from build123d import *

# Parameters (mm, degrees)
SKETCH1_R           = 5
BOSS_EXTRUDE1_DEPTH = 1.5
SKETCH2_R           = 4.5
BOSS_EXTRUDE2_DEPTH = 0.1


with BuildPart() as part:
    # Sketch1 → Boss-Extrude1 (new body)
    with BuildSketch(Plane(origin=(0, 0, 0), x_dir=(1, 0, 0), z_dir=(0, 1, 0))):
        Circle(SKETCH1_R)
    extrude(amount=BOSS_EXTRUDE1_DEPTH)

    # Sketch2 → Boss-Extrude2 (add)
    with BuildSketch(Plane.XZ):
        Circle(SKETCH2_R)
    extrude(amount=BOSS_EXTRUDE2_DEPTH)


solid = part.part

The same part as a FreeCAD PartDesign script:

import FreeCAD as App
import Part
import Sketcher
from FreeCAD import Vector

doc = App.newDocument("Part")
body = doc.addObject("PartDesign::Body", "Body")

# Sketch on XZ plane
sketch1 = body.newObject("Sketcher::SketchObject", "Sketch")
sketch1.AttachmentSupport = (doc.getObject("XZ_Plane"), [""])
sketch1.MapMode = "FlatFace"
sketch1.addGeometry(Part.Circle(Vector(0, 0, 0), Vector(0, 0, 1), 5), False)
sketch1.addConstraint(Sketcher.Constraint("Coincident", 0, 3, -1, 1))
sketch1.addConstraint(Sketcher.Constraint("Diameter", 0, 10.0))
pad1 = body.newObject("PartDesign::Pad", "Pad")
pad1.Profile = sketch1
pad1.Length = 1.5
pad1.Reversed = True

# Sketch on XZ plane
sketch2 = body.newObject("Sketcher::SketchObject", "Sketch001")
sketch2.AttachmentSupport = (doc.getObject("XZ_Plane"), [""])
sketch2.MapMode = "FlatFace"
sketch2.addGeometry(Part.Circle(Vector(0, 0, 0), Vector(0, 0, 1), 4.5), False)
sketch2.addConstraint(Sketcher.Constraint("Coincident", 0, 3, -1, 1))
sketch2.addConstraint(Sketcher.Constraint("Diameter", 0, 9.0))
pad2 = body.newObject("PartDesign::Pad", "Pad001")
pad2.Profile = sketch2
pad2.Length = 0.1

doc.recompute()
